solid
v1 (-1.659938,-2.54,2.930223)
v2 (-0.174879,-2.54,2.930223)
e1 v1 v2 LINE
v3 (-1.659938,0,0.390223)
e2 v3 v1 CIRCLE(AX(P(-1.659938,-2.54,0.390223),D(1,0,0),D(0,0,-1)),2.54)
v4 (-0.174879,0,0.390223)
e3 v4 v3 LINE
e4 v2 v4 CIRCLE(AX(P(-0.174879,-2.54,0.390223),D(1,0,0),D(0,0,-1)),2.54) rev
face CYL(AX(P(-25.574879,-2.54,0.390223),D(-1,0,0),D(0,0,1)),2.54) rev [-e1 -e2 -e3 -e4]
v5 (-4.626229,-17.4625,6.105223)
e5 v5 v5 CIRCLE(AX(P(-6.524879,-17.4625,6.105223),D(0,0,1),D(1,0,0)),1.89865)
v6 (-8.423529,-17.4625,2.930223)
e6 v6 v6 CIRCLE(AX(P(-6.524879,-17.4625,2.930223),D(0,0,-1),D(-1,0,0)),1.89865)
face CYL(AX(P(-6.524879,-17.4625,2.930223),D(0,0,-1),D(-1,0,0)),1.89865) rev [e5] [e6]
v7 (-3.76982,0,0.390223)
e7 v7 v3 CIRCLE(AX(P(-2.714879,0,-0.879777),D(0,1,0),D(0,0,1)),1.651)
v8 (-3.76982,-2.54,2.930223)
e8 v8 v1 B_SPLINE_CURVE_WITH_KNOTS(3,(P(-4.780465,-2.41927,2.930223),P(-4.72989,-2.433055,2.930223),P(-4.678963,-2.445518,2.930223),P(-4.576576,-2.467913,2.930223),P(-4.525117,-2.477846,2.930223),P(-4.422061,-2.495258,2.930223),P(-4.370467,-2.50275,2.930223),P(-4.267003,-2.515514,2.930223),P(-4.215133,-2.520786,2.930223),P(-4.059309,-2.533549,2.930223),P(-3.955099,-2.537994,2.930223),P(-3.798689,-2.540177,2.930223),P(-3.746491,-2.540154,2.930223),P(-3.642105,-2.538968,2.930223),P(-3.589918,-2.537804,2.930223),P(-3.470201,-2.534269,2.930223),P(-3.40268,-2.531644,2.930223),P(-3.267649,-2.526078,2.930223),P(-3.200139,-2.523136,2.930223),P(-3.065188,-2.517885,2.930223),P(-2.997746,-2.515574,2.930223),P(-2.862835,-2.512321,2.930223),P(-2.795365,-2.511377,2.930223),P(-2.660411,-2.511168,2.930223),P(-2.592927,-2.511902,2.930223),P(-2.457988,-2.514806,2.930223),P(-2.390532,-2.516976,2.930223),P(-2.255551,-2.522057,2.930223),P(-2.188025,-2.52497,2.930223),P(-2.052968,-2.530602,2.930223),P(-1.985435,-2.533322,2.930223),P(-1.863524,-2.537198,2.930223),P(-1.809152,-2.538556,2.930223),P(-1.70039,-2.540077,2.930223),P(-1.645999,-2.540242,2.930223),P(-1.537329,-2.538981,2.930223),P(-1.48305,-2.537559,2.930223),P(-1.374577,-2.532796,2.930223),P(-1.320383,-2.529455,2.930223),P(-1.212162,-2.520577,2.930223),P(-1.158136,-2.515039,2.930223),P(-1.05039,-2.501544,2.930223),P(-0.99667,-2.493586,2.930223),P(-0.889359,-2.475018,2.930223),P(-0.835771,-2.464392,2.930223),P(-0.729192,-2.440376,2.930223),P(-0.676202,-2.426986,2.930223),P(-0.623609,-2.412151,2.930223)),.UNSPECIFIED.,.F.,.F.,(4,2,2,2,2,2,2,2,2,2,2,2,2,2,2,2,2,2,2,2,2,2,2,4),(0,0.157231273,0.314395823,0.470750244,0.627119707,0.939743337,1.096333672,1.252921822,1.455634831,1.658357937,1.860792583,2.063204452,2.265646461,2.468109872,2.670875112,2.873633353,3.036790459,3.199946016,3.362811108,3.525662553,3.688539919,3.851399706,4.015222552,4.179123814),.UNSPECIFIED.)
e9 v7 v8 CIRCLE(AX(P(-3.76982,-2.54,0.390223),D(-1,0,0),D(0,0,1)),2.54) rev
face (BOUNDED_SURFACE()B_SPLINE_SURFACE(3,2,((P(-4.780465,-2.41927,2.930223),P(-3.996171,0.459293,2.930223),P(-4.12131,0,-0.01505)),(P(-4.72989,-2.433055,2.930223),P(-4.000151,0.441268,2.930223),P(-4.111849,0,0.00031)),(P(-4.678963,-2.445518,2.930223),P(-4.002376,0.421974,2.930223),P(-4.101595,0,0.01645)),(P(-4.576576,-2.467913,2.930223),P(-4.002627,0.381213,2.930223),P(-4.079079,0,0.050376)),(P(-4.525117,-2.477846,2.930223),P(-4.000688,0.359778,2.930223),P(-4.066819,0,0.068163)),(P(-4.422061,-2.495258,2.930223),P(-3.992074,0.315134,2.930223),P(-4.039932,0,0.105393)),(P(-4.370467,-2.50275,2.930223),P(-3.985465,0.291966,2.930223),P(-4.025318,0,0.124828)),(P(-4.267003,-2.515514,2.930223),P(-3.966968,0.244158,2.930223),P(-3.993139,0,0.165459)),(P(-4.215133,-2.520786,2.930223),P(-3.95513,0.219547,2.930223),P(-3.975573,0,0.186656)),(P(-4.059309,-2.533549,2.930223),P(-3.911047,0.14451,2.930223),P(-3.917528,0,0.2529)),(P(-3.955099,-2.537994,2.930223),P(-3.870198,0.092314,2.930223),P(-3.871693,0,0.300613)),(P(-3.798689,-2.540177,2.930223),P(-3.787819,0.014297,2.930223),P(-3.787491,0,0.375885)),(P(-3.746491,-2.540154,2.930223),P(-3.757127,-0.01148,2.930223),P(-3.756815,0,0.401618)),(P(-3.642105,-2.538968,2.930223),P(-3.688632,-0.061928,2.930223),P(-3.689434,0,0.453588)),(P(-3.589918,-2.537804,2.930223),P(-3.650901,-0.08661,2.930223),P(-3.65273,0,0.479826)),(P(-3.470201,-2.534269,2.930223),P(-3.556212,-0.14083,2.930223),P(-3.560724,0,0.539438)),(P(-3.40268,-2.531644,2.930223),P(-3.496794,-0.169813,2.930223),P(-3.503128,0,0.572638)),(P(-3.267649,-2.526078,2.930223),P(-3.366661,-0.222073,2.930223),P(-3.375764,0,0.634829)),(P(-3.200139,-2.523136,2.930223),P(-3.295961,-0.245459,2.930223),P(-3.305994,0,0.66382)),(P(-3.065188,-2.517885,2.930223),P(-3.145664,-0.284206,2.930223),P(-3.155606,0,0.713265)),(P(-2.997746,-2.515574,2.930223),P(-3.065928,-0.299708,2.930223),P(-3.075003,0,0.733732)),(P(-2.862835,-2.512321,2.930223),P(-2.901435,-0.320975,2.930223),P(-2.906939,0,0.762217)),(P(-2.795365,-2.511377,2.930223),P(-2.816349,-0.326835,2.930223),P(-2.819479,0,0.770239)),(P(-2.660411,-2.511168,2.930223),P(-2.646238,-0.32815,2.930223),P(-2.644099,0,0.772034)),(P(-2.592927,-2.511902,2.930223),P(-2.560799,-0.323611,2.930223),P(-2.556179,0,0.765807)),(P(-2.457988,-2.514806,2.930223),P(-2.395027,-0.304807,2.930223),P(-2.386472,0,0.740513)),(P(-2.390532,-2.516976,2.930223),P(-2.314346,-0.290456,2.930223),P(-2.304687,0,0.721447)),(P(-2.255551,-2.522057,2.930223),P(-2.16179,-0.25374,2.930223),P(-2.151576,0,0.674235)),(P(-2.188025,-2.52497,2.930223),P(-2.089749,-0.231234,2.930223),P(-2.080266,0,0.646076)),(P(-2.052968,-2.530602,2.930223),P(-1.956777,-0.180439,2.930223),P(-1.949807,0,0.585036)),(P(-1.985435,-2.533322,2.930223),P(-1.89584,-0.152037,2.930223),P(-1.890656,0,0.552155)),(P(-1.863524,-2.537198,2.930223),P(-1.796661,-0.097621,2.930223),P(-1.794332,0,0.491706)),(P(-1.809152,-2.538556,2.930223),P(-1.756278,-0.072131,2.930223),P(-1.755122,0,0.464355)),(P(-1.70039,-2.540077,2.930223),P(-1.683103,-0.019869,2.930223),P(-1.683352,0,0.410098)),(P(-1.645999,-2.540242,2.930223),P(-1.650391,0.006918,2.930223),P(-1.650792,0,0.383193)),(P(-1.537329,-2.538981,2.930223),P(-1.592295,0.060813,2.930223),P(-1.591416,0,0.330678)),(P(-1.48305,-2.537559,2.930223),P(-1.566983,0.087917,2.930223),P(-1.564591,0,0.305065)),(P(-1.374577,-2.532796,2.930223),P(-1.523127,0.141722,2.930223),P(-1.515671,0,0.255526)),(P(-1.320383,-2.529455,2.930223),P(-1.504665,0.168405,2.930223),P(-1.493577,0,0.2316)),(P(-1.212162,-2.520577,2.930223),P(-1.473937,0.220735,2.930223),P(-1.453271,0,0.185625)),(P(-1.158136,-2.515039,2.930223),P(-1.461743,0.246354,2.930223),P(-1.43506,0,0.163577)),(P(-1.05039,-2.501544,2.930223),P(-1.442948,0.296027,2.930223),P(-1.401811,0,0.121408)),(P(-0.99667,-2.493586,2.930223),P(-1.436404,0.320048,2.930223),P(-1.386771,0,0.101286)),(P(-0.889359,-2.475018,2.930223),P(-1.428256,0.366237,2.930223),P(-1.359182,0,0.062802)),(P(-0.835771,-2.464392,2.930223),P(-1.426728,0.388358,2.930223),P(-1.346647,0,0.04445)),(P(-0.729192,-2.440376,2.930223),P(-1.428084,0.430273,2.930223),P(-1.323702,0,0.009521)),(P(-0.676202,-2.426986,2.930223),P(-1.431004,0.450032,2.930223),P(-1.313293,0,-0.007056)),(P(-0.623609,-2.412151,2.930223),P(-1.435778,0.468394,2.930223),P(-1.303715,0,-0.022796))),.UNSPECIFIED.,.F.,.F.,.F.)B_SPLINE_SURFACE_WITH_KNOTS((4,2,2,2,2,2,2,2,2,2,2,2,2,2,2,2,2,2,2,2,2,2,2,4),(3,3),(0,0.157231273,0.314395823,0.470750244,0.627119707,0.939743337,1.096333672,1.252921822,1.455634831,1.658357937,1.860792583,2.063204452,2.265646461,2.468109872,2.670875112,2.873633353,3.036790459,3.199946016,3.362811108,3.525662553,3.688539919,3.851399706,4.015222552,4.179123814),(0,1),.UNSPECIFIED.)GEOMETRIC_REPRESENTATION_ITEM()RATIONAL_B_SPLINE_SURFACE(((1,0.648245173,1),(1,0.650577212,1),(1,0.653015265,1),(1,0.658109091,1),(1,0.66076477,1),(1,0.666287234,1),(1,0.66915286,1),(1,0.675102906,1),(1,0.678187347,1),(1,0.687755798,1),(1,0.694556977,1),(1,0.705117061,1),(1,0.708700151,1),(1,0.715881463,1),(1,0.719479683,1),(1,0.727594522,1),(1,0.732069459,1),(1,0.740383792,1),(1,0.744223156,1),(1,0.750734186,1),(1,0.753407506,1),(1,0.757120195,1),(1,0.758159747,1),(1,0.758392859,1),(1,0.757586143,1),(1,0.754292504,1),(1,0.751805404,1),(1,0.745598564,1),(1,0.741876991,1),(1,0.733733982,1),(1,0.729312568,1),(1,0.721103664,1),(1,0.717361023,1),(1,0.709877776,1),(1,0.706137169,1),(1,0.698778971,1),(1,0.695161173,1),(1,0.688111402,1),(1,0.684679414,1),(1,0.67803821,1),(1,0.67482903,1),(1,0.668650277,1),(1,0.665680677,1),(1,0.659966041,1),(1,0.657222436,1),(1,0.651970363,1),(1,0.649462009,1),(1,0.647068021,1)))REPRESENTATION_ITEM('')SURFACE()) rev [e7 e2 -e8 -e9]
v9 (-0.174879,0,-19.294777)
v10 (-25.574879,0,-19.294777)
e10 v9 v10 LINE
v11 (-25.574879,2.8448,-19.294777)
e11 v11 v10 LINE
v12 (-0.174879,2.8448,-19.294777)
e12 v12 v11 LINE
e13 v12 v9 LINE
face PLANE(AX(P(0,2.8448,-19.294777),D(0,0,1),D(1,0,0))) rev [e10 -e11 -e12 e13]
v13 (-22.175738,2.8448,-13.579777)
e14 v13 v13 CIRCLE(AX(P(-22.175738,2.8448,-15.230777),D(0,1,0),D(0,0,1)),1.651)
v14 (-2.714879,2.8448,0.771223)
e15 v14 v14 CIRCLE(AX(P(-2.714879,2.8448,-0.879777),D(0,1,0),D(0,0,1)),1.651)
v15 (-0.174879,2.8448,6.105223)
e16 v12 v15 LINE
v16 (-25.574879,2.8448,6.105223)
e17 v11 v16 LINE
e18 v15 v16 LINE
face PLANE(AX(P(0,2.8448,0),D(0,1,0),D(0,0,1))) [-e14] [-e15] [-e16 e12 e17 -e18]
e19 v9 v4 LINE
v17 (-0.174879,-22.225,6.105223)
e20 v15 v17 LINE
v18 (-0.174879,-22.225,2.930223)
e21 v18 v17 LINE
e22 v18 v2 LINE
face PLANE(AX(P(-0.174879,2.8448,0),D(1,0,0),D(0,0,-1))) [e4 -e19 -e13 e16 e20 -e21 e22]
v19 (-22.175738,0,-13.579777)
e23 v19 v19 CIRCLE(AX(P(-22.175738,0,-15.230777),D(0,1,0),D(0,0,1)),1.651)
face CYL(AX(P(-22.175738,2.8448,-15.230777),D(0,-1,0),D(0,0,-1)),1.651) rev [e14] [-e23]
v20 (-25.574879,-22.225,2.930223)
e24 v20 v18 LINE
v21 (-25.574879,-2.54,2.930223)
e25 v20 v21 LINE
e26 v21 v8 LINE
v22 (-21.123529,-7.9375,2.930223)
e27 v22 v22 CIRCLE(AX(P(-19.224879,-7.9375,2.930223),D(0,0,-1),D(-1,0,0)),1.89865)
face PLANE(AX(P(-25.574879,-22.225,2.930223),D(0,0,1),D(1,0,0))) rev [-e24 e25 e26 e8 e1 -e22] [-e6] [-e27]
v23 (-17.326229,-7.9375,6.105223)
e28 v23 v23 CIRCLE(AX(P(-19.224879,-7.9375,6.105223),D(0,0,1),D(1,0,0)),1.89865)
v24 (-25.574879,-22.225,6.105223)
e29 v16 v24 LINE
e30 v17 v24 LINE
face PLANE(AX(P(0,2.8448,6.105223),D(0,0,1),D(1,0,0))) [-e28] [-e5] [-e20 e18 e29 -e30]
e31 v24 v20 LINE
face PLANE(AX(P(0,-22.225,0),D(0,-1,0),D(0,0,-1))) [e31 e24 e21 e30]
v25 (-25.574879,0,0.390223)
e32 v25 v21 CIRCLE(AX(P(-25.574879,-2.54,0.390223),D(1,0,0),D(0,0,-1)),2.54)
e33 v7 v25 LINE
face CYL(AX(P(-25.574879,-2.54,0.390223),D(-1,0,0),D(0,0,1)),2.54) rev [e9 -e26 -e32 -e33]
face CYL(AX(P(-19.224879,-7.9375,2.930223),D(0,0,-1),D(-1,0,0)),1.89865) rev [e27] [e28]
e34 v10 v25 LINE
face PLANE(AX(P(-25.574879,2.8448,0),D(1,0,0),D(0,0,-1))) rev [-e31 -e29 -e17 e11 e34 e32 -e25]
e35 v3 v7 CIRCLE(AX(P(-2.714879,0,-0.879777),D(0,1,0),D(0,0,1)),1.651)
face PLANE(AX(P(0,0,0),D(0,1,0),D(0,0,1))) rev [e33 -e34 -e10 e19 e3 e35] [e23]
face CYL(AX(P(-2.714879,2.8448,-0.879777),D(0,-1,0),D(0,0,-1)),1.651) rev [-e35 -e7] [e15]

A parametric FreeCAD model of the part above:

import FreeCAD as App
import Part
import Sketcher
Q = App.Units.Quantity


def edges_at(feature, points):
    """Names of the edges that pass closest to the given points."""
    edges = feature.Shape.Edges
    near = lambda p: min(range(len(edges)), key=lambda i: edges[i].distToShape(Part.Vertex(*p))[0])
    return sorted({f"Edge{near(p) + 1}" for p in points})

doc = App.newDocument("Part")
body = doc.addObject("PartDesign::Body", "Body")

# Sketch on XZ plane
sketch1 = doc.addObject("Sketcher::SketchObject", "Sketch")
body.addObject(sketch1)
sketch1.AttachmentSupport = (doc.XZ_Plane, [""])
sketch1.MapMode = "FlatFace"
sketch1.addGeometry([
    Part.LineSegment(App.Vector(-25.574879, -19.294777, 0), App.Vector(-25.574879, 6.105223, 0)),  # 0
    Part.LineSegment(App.Vector(-25.574879, 6.105223, 0), App.Vector(-0.174879, 6.105223, 0)),  # 1
    Part.LineSegment(App.Vector(-0.174879, 6.105223, 0), App.Vector(-0.174879, -19.294777, 0)),  # 2
    Part.LineSegment(App.Vector(-0.174879, -19.294777, 0), App.Vector(-25.574879, -19.294777, 0)),  # 3
    Part.Circle(App.Vector(-2.714879, -0.879777, 0), App.Vector(0, 0, 1), 1.651),  # 4
    Part.Circle(App.Vector(-22.175738, -15.230777, 0), App.Vector(0, 0, 1), 1.651),  # 5
], False)
sketch1.addConstraint([
    Sketcher.Constraint("Coincident", 0, 2, 1, 1),
    Sketcher.Constraint("Coincident", 1, 2, 2, 1),
    Sketcher.Constraint("Coincident", 2, 2, 3, 1),
    Sketcher.Constraint("Coincident", 3, 2, 0, 1),
    Sketcher.Constraint("Vertical", 0),
    Sketcher.Constraint("Horizontal", 1),
    Sketcher.Constraint("Vertical", 2),
    Sketcher.Constraint("Horizontal", 3),
    Sketcher.Constraint("Equal", 4, 5),
    Sketcher.Constraint("Equal", 3, 0),
    Sketcher.Constraint("Diameter", 4, Q("0.13 in")),
    Sketcher.Constraint("DistanceX", 1, 1, 1, 2, Q("1 in")),
    Sketcher.Constraint("DistanceX", 0, 2, 4, 3, Q("0.9 in")),
    Sketcher.Constraint("DistanceY", 5, 3, 0, 2, Q("0.84 in")),
    Sketcher.Constraint("DistanceY", 5, 3, 4, 3, Q("0.565 in")),
    Sketcher.Constraint("DistanceX", 4, 3, -1, 1, Q("2.714879 mm")),
    Sketcher.Constraint("DistanceX", 5, 3, -1, 1, Q("22.175738 mm")),
    Sketcher.Constraint("DistanceY", 4, 3, -1, 1, Q("0.879777 mm")),
])
pad1 = doc.addObject("PartDesign::Pad", "Pad")
body.addObject(pad1)
pad1.Profile = sketch1
pad1.Length = Q("0.112 in")
pad1.Reversed = True

# Sketch on XZ plane
sketch2 = doc.addObject("Sketcher::SketchObject", "Sketch001")
body.addObject(sketch2)
sketch2.AttachmentSupport = (doc.XZ_Plane, [""])
sketch2.MapMode = "FlatFace"
sketch2.addGeometry([
    Part.LineSegment(App.Vector(-0.174879, 2.930223, 0), App.Vector(-0.174879, 6.105223, 0)),
    Part.LineSegment(App.Vector(-0.174879, 6.105223, 0), App.Vector(-25.574879, 6.105223, 0)),
    Part.LineSegment(App.Vector(-25.574879, 6.105223, 0), App.Vector(-25.574879, 2.930223, 0)),
    Part.LineSegment(App.Vector(-25.574879, 2.930223, 0), App.Vector(-0.174879, 2.930223, 0)),
], False)
sketch2.addConstraint([
    Sketcher.Constraint("Coincident", 0, 2, 1, 1),
    Sketcher.Constraint("Coincident", 1, 2, 2, 1),
    Sketcher.Constraint("Coincident", 2, 2, 3, 1),
    Sketcher.Constraint("Coincident", 3, 2, 0, 1),
    Sketcher.Constraint("Vertical", 0),
    Sketcher.Constraint("Horizontal", 1),
    Sketcher.Constraint("Vertical", 2),
    Sketcher.Constraint("Horizontal", 3),
    Sketcher.Constraint("DistanceX", 1, 2, 1, 1, Q("1 in")),
    Sketcher.Constraint("DistanceY", 0, 1, 0, 2, Q("0.125 in")),
    Sketcher.Constraint("DistanceX", 0, 2, -1, 1, Q("0.174879 mm")),
    Sketcher.Constraint("DistanceY", -1, 1, 0, 2, Q("6.105223 mm")),
])
pad2 = doc.addObject("PartDesign::Pad", "Pad001")
body.addObject(pad2)
pad2.Profile = sketch2
pad2.Length = Q("0.875 in")
doc.recompute()

fillet = doc.addObject("PartDesign::Fillet", "Fillet")
body.addObject(fillet)
fillet.Base = (pad2, edges_at(pad2, [(-12.875, 0, 2.93)]))
fillet.Radius = Q("0.1 in")

# Sketch on XY plane
sketch3 = doc.addObject("Sketcher::SketchObject", "Sketch002")
body.addObject(sketch3)
sketch3.AttachmentSupport = (doc.XY_Plane, [""])
sketch3.MapMode = "FlatFace"
sketch3.AttachmentOffset = App.Placement(App.Vector(0, 0, 2.930223), App.Rotation())
sketch3.addGeometry([
    Part.Circle(App.Vector(-6.524879, -17.4625, 0), App.Vector(0, 0, 1), 1.89865),
    Part.Circle(App.Vector(-19.224879, -7.9375, 0), App.Vector(0, 0, 1), 1.89865),
], False)
sketch3.addConstraint([
    Sketcher.Constraint("Equal", 0, 1),
    Sketcher.Constraint("Diameter", 0, Q("0.1495 in")),
    Sketcher.Constraint("DistanceX", 1, 3, 0, 3, Q("0.5 in")),
    Sketcher.Constraint("DistanceY", 0, 3, -1, 1, Q("0.6875 in")),
    Sketcher.Constraint("DistanceY", 1, 3, -1, 1, Q("0.3125 in")),
    Sketcher.Constraint("DistanceX", 0, 3, -1, 1, Q("6.524879 mm")),
])
doc.recompute()
hole = doc.addObject("PartDesign::Hole", "Hole")
body.addObject(hole)
hole.Profile = sketch3
hole.ThreadType = "None"
hole.Diameter = Q("0.1495 in")
hole.DepthType = "Dimension"
hole.Depth = Q("0.5 in")
hole.DrillPoint = "Angled"
hole.DrillPointAngle = 118
hole.Reversed = True

doc.recompute()
